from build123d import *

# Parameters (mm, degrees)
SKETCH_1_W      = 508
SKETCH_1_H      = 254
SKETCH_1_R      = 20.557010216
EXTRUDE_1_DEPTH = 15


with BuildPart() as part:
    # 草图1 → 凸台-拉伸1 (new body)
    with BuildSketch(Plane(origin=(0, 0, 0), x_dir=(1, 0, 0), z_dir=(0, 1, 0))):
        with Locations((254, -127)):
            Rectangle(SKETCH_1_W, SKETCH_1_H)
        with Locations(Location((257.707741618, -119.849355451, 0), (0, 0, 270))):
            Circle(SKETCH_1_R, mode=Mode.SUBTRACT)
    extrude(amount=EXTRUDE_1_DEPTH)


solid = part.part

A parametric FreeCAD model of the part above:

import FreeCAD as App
import Part
import Sketcher

V = App.Vector
Q = App.Units.Quantity

doc = App.newDocument("Part")
body = doc.addObject("PartDesign::Body", "Body")

# Sketch on XZ plane
sketch1 = body.newObject("Sketcher::SketchObject", "Sketch")
sketch1.AttachmentSupport = (doc.getObject("XZ_Plane"), [""])
sketch1.MapMode = "FlatFace"
sketch1.addGeometry([
    Part.LineSegment(V(0, 0, 0), V(0, 254, 0)),  # 0
    Part.LineSegment(V(0, 254, 0), V(508, 254, 0)),  # 1
    Part.LineSegment(V(508, 254, 0), V(508, 0, 0)),  # 2
    Part.LineSegment(V(508, 0, 0), V(0, 0, 0)),  # 3
    Part.Circle(V(258, 120, 0), V(0, 0, 1), 21),  # 4
], False)
sketch1.addConstraint([
    Sketcher.Constraint("Coincident", 0, 2, 1, 1),
    Sketcher.Constraint("Coincident", 1, 2, 2, 1),
    Sketcher.Constraint("Coincident", 2, 2, 3, 1),
    Sketcher.Constraint("Coincident", 3, 2, 0, 1),
    Sketcher.Constraint("Vertical", 0),
    Sketcher.Constraint("Horizontal", 1),
    Sketcher.Constraint("Vertical", 2),
    Sketcher.Constraint("Horizontal", 3),
    Sketcher.Constraint("Coincident", 3, 2, -1, 1),
    Sketcher.Constraint("DistanceX", 1, 1, 1, 2, Q("20 in")),
    Sketcher.Constraint("DistanceY", 0, 1, 0, 2, Q("10 in")),
    Sketcher.Constraint("Diameter", 4, Q("41.11402 mm")),
    Sketcher.Constraint("DistanceX", -1, 1, 4, 3, Q("257.707742 mm")),
    Sketcher.Constraint("DistanceY", -1, 1, 4, 3, Q("119.849355 mm")),
])
pad1 = body.newObject("PartDesign::Pad", "Pad")
pad1.Profile = sketch1
pad1.Length = 15
pad1.Reversed = True

doc.recompute()
